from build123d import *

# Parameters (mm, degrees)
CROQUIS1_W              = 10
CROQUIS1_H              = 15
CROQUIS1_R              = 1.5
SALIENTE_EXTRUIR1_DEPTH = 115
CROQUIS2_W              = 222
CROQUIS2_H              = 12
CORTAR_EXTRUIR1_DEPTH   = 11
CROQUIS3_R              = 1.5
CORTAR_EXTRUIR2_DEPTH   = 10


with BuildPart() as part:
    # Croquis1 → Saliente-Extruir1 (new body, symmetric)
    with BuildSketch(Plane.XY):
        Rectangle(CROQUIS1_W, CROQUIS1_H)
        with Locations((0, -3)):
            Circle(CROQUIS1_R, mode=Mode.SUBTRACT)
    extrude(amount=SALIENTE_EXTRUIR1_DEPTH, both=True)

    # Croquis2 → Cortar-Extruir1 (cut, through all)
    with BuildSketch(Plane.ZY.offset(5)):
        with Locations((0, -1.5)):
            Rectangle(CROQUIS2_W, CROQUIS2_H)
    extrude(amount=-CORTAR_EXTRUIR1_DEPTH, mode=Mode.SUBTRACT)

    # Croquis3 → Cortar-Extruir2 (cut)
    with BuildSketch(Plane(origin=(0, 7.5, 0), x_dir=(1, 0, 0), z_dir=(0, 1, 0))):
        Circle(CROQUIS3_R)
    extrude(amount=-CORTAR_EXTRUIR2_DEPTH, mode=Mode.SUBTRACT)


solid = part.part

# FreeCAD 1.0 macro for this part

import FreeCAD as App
import Part
import Sketcher
Q = App.Units.Quantity

doc = App.newDocument("Part")
body = doc.addObject("PartDesign::Body", "Body")

# Sketch on XY plane
sketch1 = doc.addObject("Sketcher::SketchObject", "Sketch")
body.addObject(sketch1)
sketch1.AttachmentSupport = (doc.XY_Plane, [""])
sketch1.MapMode = "FlatFace"
sketch1.addGeometry([
    Part.LineSegment(App.Vector(-5, 7.5, 0), App.Vector(-5, -7.5, 0)),  # 0
    Part.LineSegment(App.Vector(-5, -7.5, 0), App.Vector(5, -7.5, 0)),  # 1
    Part.LineSegment(App.Vector(5, -7.5, 0), App.Vector(5, 7.5, 0)),  # 2
    Part.LineSegment(App.Vector(5, 7.5, 0), App.Vector(-5, 7.5, 0)),  # 3
    Part.Circle(App.Vector(0, -3, 0), App.Vector(0, 0, 1), 1.5),  # 4
], False)
sketch1.addConstraint([
    Sketcher.Constraint("Coincident", 0, 2, 1, 1),
    Sketcher.Constraint("Coincident", 1, 2, 2, 1),
    Sketcher.Constraint("Coincident", 2, 2, 3, 1),
    Sketcher.Constraint("Coincident", 3, 2, 0, 1),
    Sketcher.Constraint("Vertical", 0),
    Sketcher.Constraint("Horizontal", 1),
    Sketcher.Constraint("Vertical", 2),
    Sketcher.Constraint("Horizontal", 3),
    Sketcher.Constraint("Symmetric", 0, 2, 2, 2, -1, 1),
    Sketcher.Constraint("PointOnObject", 4, 3, -2),
    Sketcher.Constraint("Diameter", 4, Q("3 mm")),
    Sketcher.Constraint("DistanceX", 1, 1, 1, 2, Q("10 mm")),
    Sketcher.Constraint("DistanceY", 0, 2, 0, 1, Q("15 mm")),
    Sketcher.Constraint("DistanceY", 4, 3, -1, 1, Q("3 mm")),
])
pad1 = doc.addObject("PartDesign::Pad", "Pad")
body.addObject(pad1)
pad1.Profile = sketch1
pad1.Length = 230
pad1.Midplane = True

# Sketch on YZ plane
sketch2 = doc.addObject("Sketcher::SketchObject", "Sketch001")
body.addObject(sketch2)
sketch2.AttachmentSupport = (doc.YZ_Plane, [""])
sketch2.MapMode = "FlatFace"
sketch2.AttachmentOffset = App.Placement(App.Vector(0, 0, -5), App.Rotation())
sketch2.addGeometry([
    Part.LineSegment(App.Vector(4, -111, 0), App.Vector(-8, -111, 0)),
    Part.LineSegment(App.Vector(-8, -111, 0), App.Vector(-8, 111, 0)),
    Part.LineSegment(App.Vector(-8, 111, 0), App.Vector(4, 111, 0)),
    Part.LineSegment(App.Vector(4, 111, 0), App.Vector(4, -111, 0)),
], False)
sketch2.addConstraint([
    Sketcher.Constraint("Coincident", 0, 2, 1, 1),
    Sketcher.Constraint("Coincident", 1, 2, 2, 1),
    Sketcher.Constraint("Coincident", 2, 2, 3, 1),
    Sketcher.Constraint("Coincident", 3, 2, 0, 1),
    Sketcher.Constraint("Horizontal", 0),
    Sketcher.Constraint("Vertical", 1),
    Sketcher.Constraint("Horizontal", 2),
    Sketcher.Constraint("Vertical", 3),
    Sketcher.Constraint("DistanceX", 0, 2, 0, 1, Q("12 mm")),
    Sketcher.Constraint("DistanceY", 1, 1, 1, 2, Q("222 mm")),
    Sketcher.Constraint("DistanceY", 0, 2, -1, 1, Q("111 mm")),
    Sketcher.Constraint("DistanceX", 0, 2, -1, 1, Q("7.5 mm")),
])
pocket1 = doc.addObject("PartDesign::Pocket", "Pocket")
body.addObject(pocket1)
pocket1.Profile = sketch2
pocket1.Type = "ThroughAll"
pocket1.Reversed = True

# Sketch on XZ plane
sketch3 = doc.addObject("Sketcher::SketchObject", "Sketch002")
body.addObject(sketch3)
sketch3.AttachmentSupport = (doc.XZ_Plane, [""])
sketch3.MapMode = "FlatFace"
sketch3.AttachmentOffset = App.Placement(App.Vector(0, 0, -7.5), App.Rotation())
sketch3.addGeometry(Part.Circle(App.Vector(0, 0, 0), App.Vector(0, 0, 1), 1.5), False)
sketch3.addConstraint([
    Sketcher.Constraint("Coincident", 0, 3, -1, 1),
    Sketcher.Constraint("Diameter", 0, Q("3 mm")),
])
pocket2 = doc.addObject("PartDesign::Pocket", "Pocket001")
body.addObject(pocket2)
pocket2.Profile = sketch3
pocket2.Length = 10
pocket2.Reversed = True

doc.recompute()
